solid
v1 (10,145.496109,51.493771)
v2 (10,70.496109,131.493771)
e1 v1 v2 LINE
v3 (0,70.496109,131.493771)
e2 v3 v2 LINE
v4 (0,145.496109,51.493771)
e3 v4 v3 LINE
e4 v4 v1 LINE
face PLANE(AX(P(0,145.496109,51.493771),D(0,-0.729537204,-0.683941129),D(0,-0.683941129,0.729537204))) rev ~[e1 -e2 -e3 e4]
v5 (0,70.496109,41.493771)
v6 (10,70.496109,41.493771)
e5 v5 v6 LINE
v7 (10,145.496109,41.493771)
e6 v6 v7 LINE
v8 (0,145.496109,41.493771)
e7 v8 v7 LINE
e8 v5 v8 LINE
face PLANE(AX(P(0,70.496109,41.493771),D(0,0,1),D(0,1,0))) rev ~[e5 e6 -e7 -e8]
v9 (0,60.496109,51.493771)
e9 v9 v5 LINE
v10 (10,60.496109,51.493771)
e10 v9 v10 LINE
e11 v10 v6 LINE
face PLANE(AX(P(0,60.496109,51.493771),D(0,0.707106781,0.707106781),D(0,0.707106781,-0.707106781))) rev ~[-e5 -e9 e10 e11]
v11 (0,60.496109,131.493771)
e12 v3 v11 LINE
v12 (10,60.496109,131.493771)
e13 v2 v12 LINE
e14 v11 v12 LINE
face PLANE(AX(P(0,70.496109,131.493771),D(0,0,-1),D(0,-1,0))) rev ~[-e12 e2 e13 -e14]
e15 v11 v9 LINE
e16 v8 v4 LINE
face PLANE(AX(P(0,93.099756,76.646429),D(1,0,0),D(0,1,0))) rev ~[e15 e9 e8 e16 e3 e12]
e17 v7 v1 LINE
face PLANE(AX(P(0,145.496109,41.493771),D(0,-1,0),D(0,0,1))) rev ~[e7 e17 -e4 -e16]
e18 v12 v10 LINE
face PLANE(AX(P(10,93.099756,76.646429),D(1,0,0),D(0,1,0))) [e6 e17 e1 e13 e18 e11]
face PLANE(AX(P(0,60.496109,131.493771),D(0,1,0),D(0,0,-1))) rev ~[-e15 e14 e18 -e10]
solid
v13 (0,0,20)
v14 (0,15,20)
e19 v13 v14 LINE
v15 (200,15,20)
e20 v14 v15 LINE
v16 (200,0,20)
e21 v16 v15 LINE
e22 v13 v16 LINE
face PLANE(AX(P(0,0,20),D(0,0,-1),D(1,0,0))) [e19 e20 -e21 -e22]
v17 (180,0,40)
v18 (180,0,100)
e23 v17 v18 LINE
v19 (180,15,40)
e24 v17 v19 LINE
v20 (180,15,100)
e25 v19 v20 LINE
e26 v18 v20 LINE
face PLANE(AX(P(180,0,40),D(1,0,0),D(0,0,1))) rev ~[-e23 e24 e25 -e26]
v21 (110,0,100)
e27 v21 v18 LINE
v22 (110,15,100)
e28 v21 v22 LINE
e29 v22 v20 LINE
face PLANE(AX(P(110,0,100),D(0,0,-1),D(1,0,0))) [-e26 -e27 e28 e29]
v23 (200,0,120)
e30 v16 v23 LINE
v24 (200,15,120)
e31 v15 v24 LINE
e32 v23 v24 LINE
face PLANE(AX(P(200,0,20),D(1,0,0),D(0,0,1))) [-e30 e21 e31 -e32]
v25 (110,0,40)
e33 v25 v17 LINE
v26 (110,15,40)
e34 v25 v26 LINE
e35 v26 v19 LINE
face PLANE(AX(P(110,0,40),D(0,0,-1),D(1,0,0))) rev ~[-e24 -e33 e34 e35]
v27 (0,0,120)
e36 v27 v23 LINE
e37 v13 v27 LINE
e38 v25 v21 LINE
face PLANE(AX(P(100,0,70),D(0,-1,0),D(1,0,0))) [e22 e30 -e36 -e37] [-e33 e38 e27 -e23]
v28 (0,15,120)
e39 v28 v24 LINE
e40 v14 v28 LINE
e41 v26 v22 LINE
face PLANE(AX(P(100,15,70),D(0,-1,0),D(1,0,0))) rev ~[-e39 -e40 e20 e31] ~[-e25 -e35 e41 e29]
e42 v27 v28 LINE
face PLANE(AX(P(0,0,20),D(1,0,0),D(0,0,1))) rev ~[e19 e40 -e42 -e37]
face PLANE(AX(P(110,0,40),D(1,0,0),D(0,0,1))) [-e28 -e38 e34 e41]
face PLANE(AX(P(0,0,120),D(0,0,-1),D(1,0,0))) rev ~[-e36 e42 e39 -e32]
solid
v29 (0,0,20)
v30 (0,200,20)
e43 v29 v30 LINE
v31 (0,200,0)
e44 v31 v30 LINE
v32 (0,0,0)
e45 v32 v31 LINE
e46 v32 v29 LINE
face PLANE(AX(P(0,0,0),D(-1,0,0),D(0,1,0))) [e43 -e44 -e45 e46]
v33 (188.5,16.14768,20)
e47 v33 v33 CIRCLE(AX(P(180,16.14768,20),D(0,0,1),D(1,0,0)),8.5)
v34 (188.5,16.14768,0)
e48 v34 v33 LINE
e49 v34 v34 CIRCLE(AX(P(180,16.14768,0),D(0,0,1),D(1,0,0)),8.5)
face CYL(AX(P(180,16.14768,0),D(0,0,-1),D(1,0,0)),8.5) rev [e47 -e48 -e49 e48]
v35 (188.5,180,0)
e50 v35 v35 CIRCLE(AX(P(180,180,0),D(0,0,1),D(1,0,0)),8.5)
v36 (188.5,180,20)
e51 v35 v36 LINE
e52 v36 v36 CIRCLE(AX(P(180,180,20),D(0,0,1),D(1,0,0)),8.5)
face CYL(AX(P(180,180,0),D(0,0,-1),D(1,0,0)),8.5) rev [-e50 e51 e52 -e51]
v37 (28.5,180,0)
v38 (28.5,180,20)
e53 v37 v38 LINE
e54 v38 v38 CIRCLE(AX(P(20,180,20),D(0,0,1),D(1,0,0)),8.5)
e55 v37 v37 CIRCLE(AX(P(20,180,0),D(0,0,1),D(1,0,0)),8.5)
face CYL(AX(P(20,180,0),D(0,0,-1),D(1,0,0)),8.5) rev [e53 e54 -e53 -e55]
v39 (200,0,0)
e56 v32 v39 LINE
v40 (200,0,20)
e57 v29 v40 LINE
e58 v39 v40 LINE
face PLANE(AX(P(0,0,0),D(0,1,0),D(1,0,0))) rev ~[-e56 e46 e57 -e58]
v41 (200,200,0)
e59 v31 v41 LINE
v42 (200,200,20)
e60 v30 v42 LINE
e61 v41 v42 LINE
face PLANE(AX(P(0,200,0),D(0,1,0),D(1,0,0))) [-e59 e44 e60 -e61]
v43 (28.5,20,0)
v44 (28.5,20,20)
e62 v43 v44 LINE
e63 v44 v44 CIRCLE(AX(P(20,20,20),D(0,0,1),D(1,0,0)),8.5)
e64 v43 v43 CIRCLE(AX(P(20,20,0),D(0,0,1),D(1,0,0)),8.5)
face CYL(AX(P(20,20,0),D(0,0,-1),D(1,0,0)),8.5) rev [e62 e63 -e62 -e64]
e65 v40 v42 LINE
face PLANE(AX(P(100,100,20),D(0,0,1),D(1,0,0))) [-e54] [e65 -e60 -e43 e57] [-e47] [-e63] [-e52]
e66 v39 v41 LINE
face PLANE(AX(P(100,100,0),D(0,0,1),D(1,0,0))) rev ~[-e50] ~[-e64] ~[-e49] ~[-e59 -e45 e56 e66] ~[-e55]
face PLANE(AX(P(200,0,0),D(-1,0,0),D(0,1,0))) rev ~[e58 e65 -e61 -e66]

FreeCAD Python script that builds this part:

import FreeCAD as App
import Part
import Sketcher

V = App.Vector

doc = App.newDocument("Part")
body = doc.addObject("PartDesign::Body", "Body")

# Sketch on XY plane
sketch1 = doc.addObject("Sketcher::SketchObject", "Sketch")
body.addObject(sketch1)
sketch1.AttachmentSupport = (doc.XY_Plane, [""])
sketch1.MapMode = "FlatFace"
sketch1.addGeometry([
    Part.LineSegment(V(0, 200, 0), V(0, 0, 0)),  # 0
    Part.LineSegment(V(0, 0, 0), V(200, 0, 0)),  # 1
    Part.LineSegment(V(200, 0, 0), V(200, 200, 0)),  # 2
    Part.LineSegment(V(200, 200, 0), V(0, 200, 0)),  # 3
    Part.Circle(V(20, 20, 0), V(0, 0, 1), 8),  # 4
    Part.Circle(V(180, 16, 0), V(0, 0, 1), 8),  # 5
    Part.Circle(V(20, 180, 0), V(0, 0, 1), 8),  # 6
    Part.Circle(V(180, 180, 0), V(0, 0, 1), 8),  # 7
], False)
sketch1.addConstraint([
    Sketcher.Constraint("Coincident", 0, 2, 1, 1),
    Sketcher.Constraint("Coincident", 1, 2, 2, 1),
    Sketcher.Constraint("Coincident", 2, 2, 3, 1),
    Sketcher.Constraint("Coincident", 3, 2, 0, 1),
    Sketcher.Constraint("Vertical", 0),
    Sketcher.Constraint("Horizontal", 1),
    Sketcher.Constraint("Vertical", 2),
    Sketcher.Constraint("Horizontal", 3),
    Sketcher.Constraint("Coincident", 0, 2, -1, 1),
    Sketcher.Constraint("Equal", 4, 5),
    Sketcher.Constraint("Equal", 5, 6),
    Sketcher.Constraint("Equal", 6, 7),
    Sketcher.Constraint("Horizontal", 6, 3, 7, 3),
    Sketcher.Constraint("Vertical", 4, 3, 6, 3),
    Sketcher.Constraint("Vertical", 5, 3, 7, 3),
    Sketcher.Constraint("Equal", 3, 0),
    Sketcher.Constraint("Diameter", 4, 17.0),
    Sketcher.Constraint("DistanceX", 1, 1, 1, 2, 200.0),
    Sketcher.Constraint("DistanceX", -1, 1, 4, 3, 20.0),
    Sketcher.Constraint("DistanceY", -1, 1, 4, 3, 20.0),
    Sketcher.Constraint("DistanceX", -1, 1, 5, 3, 180.0),
    Sketcher.Constraint("DistanceY", -1, 1, 6, 3, 180.0),
    Sketcher.Constraint("DistanceY", -1, 1, 5, 3, 16.14768),
])
pad1 = doc.addObject("PartDesign::Pad", "Pad")
body.addObject(pad1)
pad1.Profile = sketch1
pad1.Length = 20
body2 = doc.addObject("PartDesign::Body", "Body001")

# Sketch on XZ plane
sketch2 = doc.addObject("Sketcher::SketchObject", "Sketch001")
body2.addObject(sketch2)
sketch2.AttachmentSupport = (doc.getObject("XZ_Plane001"), [""])
sketch2.MapMode = "FlatFace"
sketch2.addGeometry([
    Part.LineSegment(V(0, 120, 0), V(0, 20, 0)),
    Part.LineSegment(V(0, 20, 0), V(200, 20, 0)),
    Part.LineSegment(V(200, 20, 0), V(200, 120, 0)),
    Part.LineSegment(V(200, 120, 0), V(0, 120, 0)),
], False)
sketch2.addConstraint([
    Sketcher.Constraint("Coincident", 0, 2, 1, 1),
    Sketcher.Constraint("Coincident", 1, 2, 2, 1),
    Sketcher.Constraint("Coincident", 2, 2, 3, 1),
    Sketcher.Constraint("Coincident", 3, 2, 0, 1),
    Sketcher.Constraint("Vertical", 0),
    Sketcher.Constraint("Horizontal", 1),
    Sketcher.Constraint("Vertical", 2),
    Sketcher.Constraint("Horizontal", 3),
    Sketcher.Constraint("PointOnObject", 0, 2, -2),
    Sketcher.Constraint("DistanceX", 1, 1, 1, 2, 200.0),
    Sketcher.Constraint("DistanceY", 0, 2, 0, 1, 100.0),
    Sketcher.Constraint("DistanceY", -1, 1, 0, 2, 20.0),
])
pad2 = doc.addObject("PartDesign::Pad", "Pad001")
body2.addObject(pad2)
pad2.Profile = sketch2
pad2.Length = 15
pad2.Reversed = True

# Sketch on XZ plane
sketch3 = doc.addObject("Sketcher::SketchObject", "Sketch002")
body2.addObject(sketch3)
sketch3.AttachmentSupport = (doc.getObject("XZ_Plane001"), [""])
sketch3.MapMode = "FlatFace"
sketch3.addGeometry([
    Part.LineSegment(V(110, 100, 0), V(110, 40, 0)),
    Part.LineSegment(V(110, 40, 0), V(180, 40, 0)),
    Part.LineSegment(V(180, 40, 0), V(180, 100, 0)),
    Part.LineSegment(V(180, 100, 0), V(110, 100, 0)),
], False)
sketch3.addConstraint([
    Sketcher.Constraint("Coincident", 0, 2, 1, 1),
    Sketcher.Constraint("Coincident", 1, 2, 2, 1),
    Sketcher.Constraint("Coincident", 2, 2, 3, 1),
    Sketcher.Constraint("Coincident", 3, 2, 0, 1),
    Sketcher.Constraint("Vertical", 0),
    Sketcher.Constraint("Horizontal", 1),
    Sketcher.Constraint("Vertical", 2),
    Sketcher.Constraint("Horizontal", 3),
    Sketcher.Constraint("DistanceX", 1, 1, 1, 2, 70.0),
    Sketcher.Constraint("DistanceY", 0, 2, 0, 1, 60.0),
    Sketcher.Constraint("DistanceX", -1, 1, 0, 2, 110.0),
    Sketcher.Constraint("DistanceY", -1, 1, 0, 2, 40.0),
])
pocket1 = doc.addObject("PartDesign::Pocket", "Pocket")
body2.addObject(pocket1)
pocket1.Profile = sketch3
pocket1.Type = "ThroughAll"
body3 = doc.addObject("PartDesign::Body", "Body002")

# Sketch on YZ plane
sketch4 = doc.addObject("Sketcher::SketchObject", "Sketch003")
body3.addObject(sketch4)
sketch4.AttachmentSupport = (doc.getObject("YZ_Plane002"), [""])
sketch4.MapMode = "FlatFace"
sketch4.addGeometry([
    Part.LineSegment(V(70, 131, 0), V(60, 131, 0)),  # 0
    Part.LineSegment(V(60, 131, 0), V(60, 51, 0)),  # 1
    Part.LineSegment(V(60, 51, 0), V(70, 41, 0)),  # 2
    Part.LineSegment(V(70, 41, 0), V(145, 41, 0)),  # 3
    Part.LineSegment(V(145, 41, 0), V(145, 51, 0)),  # 4
    Part.LineSegment(V(145, 51, 0), V(70, 131, 0)),  # 5
], False)
sketch4.addConstraint([
    Sketcher.Constraint("Coincident", 0, 2, 1, 1),
    Sketcher.Constraint("Coincident", 1, 2, 2, 1),
    Sketcher.Constraint("Coincident", 2, 2, 3, 1),
    Sketcher.Constraint("Coincident", 3, 2, 4, 1),
    Sketcher.Constraint("Coincident", 4, 2, 5, 1),
    Sketcher.Constraint("Coincident", 5, 2, 0, 1),
    Sketcher.Constraint("Horizontal", 0),
    Sketcher.Constraint("Vertical", 1),
    Sketcher.Constraint("Horizontal", 3),
    Sketcher.Constraint("Vertical", 4),
    Sketcher.Constraint("Horizontal", 1, 2, 4, 2),
    Sketcher.Constraint("Vertical", 2, 2, 5, 2),
    Sketcher.Constraint("Equal", 0, 4),
    Sketcher.Constraint("DistanceX", 0, 2, 0, 1, 10.0),
    Sketcher.Constraint("DistanceX", 3, 1, 3, 2, 75.0),
    Sketcher.Constraint("DistanceY", 1, 2, 1, 1, 80.0),
    Sketcher.Constraint("DistanceX", -1, 1, 0, 2, 60.496109),
    Sketcher.Constraint("DistanceY", -1, 1, 0, 2, 131.493771),
])
pad3 = doc.addObject("PartDesign::Pad", "Pad002")
body3.addObject(pad3)
pad3.Profile = sketch4
pad3.Length = 10

doc.recompute()
